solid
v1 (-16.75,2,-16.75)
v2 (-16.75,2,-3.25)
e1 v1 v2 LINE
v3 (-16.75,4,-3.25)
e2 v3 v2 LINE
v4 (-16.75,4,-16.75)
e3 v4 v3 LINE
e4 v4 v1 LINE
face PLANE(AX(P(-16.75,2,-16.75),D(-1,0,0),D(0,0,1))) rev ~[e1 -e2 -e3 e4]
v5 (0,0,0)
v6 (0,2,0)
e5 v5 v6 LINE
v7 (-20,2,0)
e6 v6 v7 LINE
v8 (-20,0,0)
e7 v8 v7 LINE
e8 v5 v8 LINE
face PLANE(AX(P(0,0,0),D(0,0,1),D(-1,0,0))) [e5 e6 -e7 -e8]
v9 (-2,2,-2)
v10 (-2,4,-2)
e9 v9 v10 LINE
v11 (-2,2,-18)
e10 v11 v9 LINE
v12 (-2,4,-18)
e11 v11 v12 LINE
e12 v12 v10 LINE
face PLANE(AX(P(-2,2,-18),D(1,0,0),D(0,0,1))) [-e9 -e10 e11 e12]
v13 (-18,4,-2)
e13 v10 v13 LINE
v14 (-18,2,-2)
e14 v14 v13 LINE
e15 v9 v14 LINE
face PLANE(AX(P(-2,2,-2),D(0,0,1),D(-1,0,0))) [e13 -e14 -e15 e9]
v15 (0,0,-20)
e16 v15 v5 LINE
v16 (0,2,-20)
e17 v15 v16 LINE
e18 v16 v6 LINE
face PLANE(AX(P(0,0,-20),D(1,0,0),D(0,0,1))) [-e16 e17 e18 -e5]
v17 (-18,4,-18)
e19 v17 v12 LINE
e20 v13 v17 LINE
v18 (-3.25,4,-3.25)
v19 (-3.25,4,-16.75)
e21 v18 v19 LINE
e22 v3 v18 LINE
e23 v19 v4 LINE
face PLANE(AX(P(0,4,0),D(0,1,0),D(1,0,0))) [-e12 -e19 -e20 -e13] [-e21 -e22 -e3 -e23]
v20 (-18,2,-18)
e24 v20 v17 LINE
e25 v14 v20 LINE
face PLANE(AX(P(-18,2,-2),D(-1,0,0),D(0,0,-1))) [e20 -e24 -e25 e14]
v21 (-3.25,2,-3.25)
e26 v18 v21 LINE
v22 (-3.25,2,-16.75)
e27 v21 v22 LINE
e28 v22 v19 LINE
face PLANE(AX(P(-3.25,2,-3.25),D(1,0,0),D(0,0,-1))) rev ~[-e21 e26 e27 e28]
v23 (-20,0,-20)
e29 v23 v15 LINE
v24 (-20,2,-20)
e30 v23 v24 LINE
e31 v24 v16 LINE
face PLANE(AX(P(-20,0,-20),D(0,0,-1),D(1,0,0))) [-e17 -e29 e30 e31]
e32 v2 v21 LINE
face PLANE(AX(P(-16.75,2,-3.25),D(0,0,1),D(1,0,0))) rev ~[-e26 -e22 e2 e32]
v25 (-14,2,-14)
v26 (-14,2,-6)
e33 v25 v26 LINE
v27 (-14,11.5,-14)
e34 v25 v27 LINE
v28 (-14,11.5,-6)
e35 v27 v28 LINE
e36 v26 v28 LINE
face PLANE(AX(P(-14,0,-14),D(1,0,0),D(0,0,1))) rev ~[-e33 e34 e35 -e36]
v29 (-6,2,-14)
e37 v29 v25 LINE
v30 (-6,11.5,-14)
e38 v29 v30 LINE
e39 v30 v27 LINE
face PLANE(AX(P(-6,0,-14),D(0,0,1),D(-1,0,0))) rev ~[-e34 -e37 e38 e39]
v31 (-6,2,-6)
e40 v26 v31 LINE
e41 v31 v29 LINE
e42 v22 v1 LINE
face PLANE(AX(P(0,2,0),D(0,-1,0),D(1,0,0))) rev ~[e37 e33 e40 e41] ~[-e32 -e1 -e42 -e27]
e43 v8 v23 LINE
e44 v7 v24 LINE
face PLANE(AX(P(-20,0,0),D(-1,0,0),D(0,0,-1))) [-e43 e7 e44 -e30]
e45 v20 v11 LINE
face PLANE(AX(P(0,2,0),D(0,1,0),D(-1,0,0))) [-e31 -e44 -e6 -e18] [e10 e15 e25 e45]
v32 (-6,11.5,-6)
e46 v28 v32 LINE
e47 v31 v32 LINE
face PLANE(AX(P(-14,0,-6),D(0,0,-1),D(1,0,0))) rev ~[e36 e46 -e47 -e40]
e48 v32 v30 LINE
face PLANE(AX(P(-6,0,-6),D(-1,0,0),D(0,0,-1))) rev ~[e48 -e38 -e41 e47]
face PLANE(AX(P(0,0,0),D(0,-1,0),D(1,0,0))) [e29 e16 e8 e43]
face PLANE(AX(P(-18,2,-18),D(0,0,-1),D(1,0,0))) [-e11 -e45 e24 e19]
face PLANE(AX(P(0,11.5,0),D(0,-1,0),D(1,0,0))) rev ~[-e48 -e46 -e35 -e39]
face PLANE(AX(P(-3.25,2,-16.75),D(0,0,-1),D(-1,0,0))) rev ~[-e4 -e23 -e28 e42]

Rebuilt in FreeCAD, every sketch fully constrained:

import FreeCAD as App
import Part
import Sketcher

V = App.Vector
Q = App.Units.Quantity

doc = App.newDocument("Part")
body = doc.addObject("PartDesign::Body", "Body")

# Sketch on XZ plane
sketch1 = doc.addObject("Sketcher::SketchObject", "Sketch")
body.addObject(sketch1)
sketch1.AttachmentSupport = (doc.XZ_Plane, [""])
sketch1.MapMode = "FlatFace"
sketch1.addGeometry(Part.LineSegment(V(-20, 0, 0), V(0, 0, 0)), False)
sketch1.addGeometry(Part.LineSegment(V(0, 0, 0), V(0, -20, 0)), False)
sketch1.addGeometry(Part.LineSegment(V(0, -20, 0), V(-20, -20, 0)), False)
sketch1.addGeometry(Part.LineSegment(V(-20, -20, 0), V(-20, 0, 0)), False)
sketch1.addConstraint(Sketcher.Constraint("Coincident", 0, 2, 1, 1))
sketch1.addConstraint(Sketcher.Constraint("Coincident", 1, 2, 2, 1))
sketch1.addConstraint(Sketcher.Constraint("Coincident", 2, 2, 3, 1))
sketch1.addConstraint(Sketcher.Constraint("Coincident", 3, 2, 0, 1))
sketch1.addConstraint(Sketcher.Constraint("Horizontal", 0))
sketch1.addConstraint(Sketcher.Constraint("Vertical", 1))
sketch1.addConstraint(Sketcher.Constraint("Horizontal", 2))
sketch1.addConstraint(Sketcher.Constraint("Vertical", 3))
sketch1.addConstraint(Sketcher.Constraint("Coincident", 0, 2, -1, 1))
sketch1.addConstraint(Sketcher.Constraint("Equal", 2, 1))
sketch1.addConstraint(Sketcher.Constraint("DistanceX", 0, 1, 0, 2, Q("20 mm")))
pad1 = doc.addObject("PartDesign::Pad", "Pad")
body.addObject(pad1)
pad1.Profile = sketch1
pad1.Length = 2
pad1.Reversed = True

# Sketch on XZ plane
sketch2 = doc.addObject("Sketcher::SketchObject", "Sketch001")
body.addObject(sketch2)
sketch2.AttachmentSupport = (doc.XZ_Plane, [""])
sketch2.MapMode = "FlatFace"
sketch2.AttachmentOffset = App.Placement(V(0, 0, -2), App.Rotation())
sketch2.addGeometry(Part.LineSegment(V(-18, -18, 0), V(-18, -2, 0)), False)
sketch2.addGeometry(Part.LineSegment(V(-18, -2, 0), V(-2, -2, 0)), False)
sketch2.addGeometry(Part.LineSegment(V(-2, -2, 0), V(-2, -18, 0)), False)
sketch2.addGeometry(Part.LineSegment(V(-2, -18, 0), V(-18, -18, 0)), False)
sketch2.addGeometry(Part.LineSegment(V(-16.75, -3.25, 0), V(-16.75, -16.75, 0)), False)
sketch2.addGeometry(Part.LineSegment(V(-16.75, -16.75, 0), V(-3.25, -16.75, 0)), False)
sketch2.addGeometry(Part.LineSegment(V(-3.25, -16.75, 0), V(-3.25, -3.25, 0)), False)
sketch2.addGeometry(Part.LineSegment(V(-3.25, -3.25, 0), V(-16.75, -3.25, 0)), False)
sketch2.addConstraint(Sketcher.Constraint("Coincident", 0, 2, 1, 1))
sketch2.addConstraint(Sketcher.Constraint("Coincident", 1, 2, 2, 1))
sketch2.addConstraint(Sketcher.Constraint("Coincident", 2, 2, 3, 1))
sketch2.addConstraint(Sketcher.Constraint("Coincident", 3, 2, 0, 1))
sketch2.addConstraint(Sketcher.Constraint("Coincident", 4, 2, 5, 1))
sketch2.addConstraint(Sketcher.Constraint("Coincident", 5, 2, 6, 1))
sketch2.addConstraint(Sketcher.Constraint("Coincident", 6, 2, 7, 1))
sketch2.addConstraint(Sketcher.Constraint("Coincident", 7, 2, 4, 1))
sketch2.addConstraint(Sketcher.Constraint("Vertical", 0))
sketch2.addConstraint(Sketcher.Constraint("Horizontal", 1))
sketch2.addConstraint(Sketcher.Constraint("Vertical", 2))
sketch2.addConstraint(Sketcher.Constraint("Horizontal", 3))
sketch2.addConstraint(Sketcher.Constraint("Vertical", 4))
sketch2.addConstraint(Sketcher.Constraint("Horizontal", 5))
sketch2.addConstraint(Sketcher.Constraint("Vertical", 6))
sketch2.addConstraint(Sketcher.Constraint("Horizontal", 7))
sketch2.addConstraint(Sketcher.Constraint("Equal", 3, 0))
sketch2.addConstraint(Sketcher.Constraint("Equal", 7, 4))
sketch2.addConstraint(Sketcher.Constraint("DistanceY", 0, 2, -1, 1, Q("2 mm")))
sketch2.addConstraint(Sketcher.Constraint("DistanceX", 1, 2, -1, 1, Q("2 mm")))
sketch2.addConstraint(Sketcher.Constraint("DistanceX", 1, 1, 1, 2, Q("16 mm")))
sketch2.addConstraint(Sketcher.Constraint("DistanceX", 3, 2, 4, 2, Q("1.25 mm")))
sketch2.addConstraint(Sketcher.Constraint("DistanceY", 3, 2, 4, 2, Q("1.25 mm")))
sketch2.addConstraint(Sketcher.Constraint("DistanceX", 5, 2, 2, 2, Q("1.25 mm")))
pad2 = doc.addObject("PartDesign::Pad", "Pad001")
body.addObject(pad2)
pad2.Profile = sketch2
pad2.Length = 2
pad2.Reversed = True

# Sketch on XZ plane
sketch3 = doc.addObject("Sketcher::SketchObject", "Sketch002")
body.addObject(sketch3)
sketch3.AttachmentSupport = (doc.XZ_Plane, [""])
sketch3.MapMode = "FlatFace"
sketch3.AttachmentOffset = App.Placement(V(0, 0, -2), App.Rotation())
sketch3.addGeometry(Part.LineSegment(V(-3.25, -16.75, 0), V(-16.75, -16.75, 0)), False)
sketch3.addGeometry(Part.LineSegment(V(-16.75, -16.75, 0), V(-16.75, -3.25, 0)), False)
sketch3.addGeometry(Part.LineSegment(V(-16.75, -3.25, 0), V(-3.25, -3.25, 0)), False)
sketch3.addGeometry(Part.LineSegment(V(-3.25, -3.25, 0), V(-3.25, -16.75, 0)), False)
sketch3.addConstraint(Sketcher.Constraint("Coincident", 0, 2, 1, 1))
sketch3.addConstraint(Sketcher.Constraint("Coincident", 1, 2, 2, 1))
sketch3.addConstraint(Sketcher.Constraint("Coincident", 2, 2, 3, 1))
sketch3.addConstraint(Sketcher.Constraint("Coincident", 3, 2, 0, 1))
sketch3.addConstraint(Sketcher.Constraint("Horizontal", 0))
sketch3.addConstraint(Sketcher.Constraint("Vertical", 1))
sketch3.addConstraint(Sketcher.Constraint("Horizontal", 2))
sketch3.addConstraint(Sketcher.Constraint("Vertical", 3))
sketch3.addConstraint(Sketcher.Constraint("Equal", 2, 1))
sketch3.addConstraint(Sketcher.Constraint("DistanceX", 0, 2, 0, 1, Q("13.5 mm")))
sketch3.addConstraint(Sketcher.Constraint("DistanceX", 0, 2, -1, 1, Q("16.75 mm")))
sketch3.addConstraint(Sketcher.Constraint("DistanceY", 0, 2, -1, 1, Q("16.75 mm")))
pocket1 = doc.addObject("PartDesign::Pocket", "Pocket")
body.addObject(pocket1)
pocket1.Profile = sketch3
pocket1.Length = 10
pocket1.Reversed = True

# Sketch on XZ plane
sketch4 = doc.addObject("Sketcher::SketchObject", "Sketch003")
body.addObject(sketch4)
sketch4.AttachmentSupport = (doc.XZ_Plane, [""])
sketch4.MapMode = "FlatFace"
sketch4.addGeometry(Part.LineSegment(V(-3.25, -16.75, 0), V(-3.25, -3.25, 0)), False)
sketch4.addGeometry(Part.LineSegment(V(-3.25, -3.25, 0), V(-16.75, -3.25, 0)), False)
sketch4.addGeometry(Part.LineSegment(V(-16.75, -3.25, 0), V(-16.75, -16.75, 0)), False)
sketch4.addGeometry(Part.LineSegment(V(-16.75, -16.75, 0), V(-3.25, -16.75, 0)), False)
sketch4.addGeometry(Part.LineSegment(V(-14, -6, 0), V(-6, -6, 0)), False)
sketch4.addGeometry(Part.LineSegment(V(-6, -6, 0), V(-6, -14, 0)), False)
sketch4.addGeometry(Part.LineSegment(V(-6, -14, 0), V(-14, -14, 0)), False)
sketch4.addGeometry(Part.LineSegment(V(-14, -14, 0), V(-14, -6, 0)), False)
sketch4.addConstraint(Sketcher.Constraint("Coincident", 0, 2, 1, 1))
sketch4.addConstraint(Sketcher.Constraint("Coincident", 1, 2, 2, 1))
sketch4.addConstraint(Sketcher.Constraint("Coincident", 2, 2, 3, 1))
sketch4.addConstraint(Sketcher.Constraint("Coincident", 3, 2, 0, 1))
sketch4.addConstraint(Sketcher.Constraint("Coincident", 4, 2, 5, 1))
sketch4.addConstraint(Sketcher.Constraint("Coincident", 5, 2, 6, 1))
sketch4.addConstraint(Sketcher.Constraint("Coincident", 6, 2, 7, 1))
sketch4.addConstraint(Sketcher.Constraint("Coincident", 7, 2, 4, 1))
sketch4.addConstraint(Sketcher.Constraint("Vertical", 0))
sketch4.addConstraint(Sketcher.Constraint("Horizontal", 1))
sketch4.addConstraint(Sketcher.Constraint("Vertical", 2))
sketch4.addConstraint(Sketcher.Constraint("Horizontal", 3))
sketch4.addConstraint(Sketcher.Constraint("Horizontal", 4))
sketch4.addConstraint(Sketcher.Constraint("Vertical", 5))
sketch4.addConstraint(Sketcher.Constraint("Horizontal", 6))
sketch4.addConstraint(Sketcher.Constraint("Vertical", 7))
sketch4.addConstraint(Sketcher.Constraint("Equal", 3, 0))
sketch4.addConstraint(Sketcher.Constraint("Equal", 6, 5))
sketch4.addConstraint(Sketcher.Constraint("DistanceX", 4, 1, 4, 2, Q("8 mm")))
sketch4.addConstraint(Sketcher.Constraint("DistanceX", 1, 2, 1, 1, Q("13.5 mm")))
sketch4.addConstraint(Sketcher.Constraint("DistanceX", 4, 2, -1, 1, Q("6 mm")))
sketch4.addConstraint(Sketcher.Constraint("DistanceY", 4, 2, -1, 1, Q("6 mm")))
sketch4.addConstraint(Sketcher.Constraint("DistanceX", 0, 2, -1, 1, Q("3.25 mm")))
sketch4.addConstraint(Sketcher.Constraint("DistanceY", 0, 2, -1, 1, Q("3.25 mm")))
pad3 = doc.addObject("PartDesign::Pad", "Pad002")
body.addObject(pad3)
pad3.Profile = sketch4
pad3.Length = 2
pad3.Reversed = True

# Sketch on XZ plane
sketch5 = doc.addObject("Sketcher::SketchObject", "Sketch004")
body.addObject(sketch5)
sketch5.AttachmentSupport = (doc.XZ_Plane, [""])
sketch5.MapMode = "FlatFace"
sketch5.addGeometry(Part.LineSegment(V(-6, -14, 0), V(-6, -6, 0)), False)
sketch5.addGeometry(Part.LineSegment(V(-6, -6, 0), V(-14, -6, 0)), False)
sketch5.addGeometry(Part.LineSegment(V(-14, -6, 0), V(-14, -14, 0)), False)
sketch5.addGeometry(Part.LineSegment(V(-14, -14, 0), V(-6, -14, 0)), False)
sketch5.addConstraint(Sketcher.Constraint("Coincident", 0, 2, 1, 1))
sketch5.addConstraint(Sketcher.Constraint("Coincident", 1, 2, 2, 1))
sketch5.addConstraint(Sketcher.Constraint("Coincident", 2, 2, 3, 1))
sketch5.addConstraint(Sketcher.Constraint("Coincident", 3, 2, 0, 1))
sketch5.addConstraint(Sketcher.Constraint("Vertical", 0))
sketch5.addConstraint(Sketcher.Constraint("Horizontal", 1))
sketch5.addConstraint(Sketcher.Constraint("Vertical", 2))
sketch5.addConstraint(Sketcher.Constraint("Horizontal", 3))
sketch5.addConstraint(Sketcher.Constraint("Equal", 3, 0))
sketch5.addConstraint(Sketcher.Constraint("DistanceX", 1, 2, 1, 1, Q("8 mm")))
sketch5.addConstraint(Sketcher.Constraint("DistanceX", 0, 2, -1, 1, Q("6 mm")))
sketch5.addConstraint(Sketcher.Constraint("DistanceY", 0, 2, -1, 1, Q("6 mm")))
pad4 = doc.addObject("PartDesign::Pad", "Pad003")
body.addObject(pad4)
pad4.Profile = sketch5
pad4.Length = 11.5
pad4.Reversed = True

doc.recompute()
